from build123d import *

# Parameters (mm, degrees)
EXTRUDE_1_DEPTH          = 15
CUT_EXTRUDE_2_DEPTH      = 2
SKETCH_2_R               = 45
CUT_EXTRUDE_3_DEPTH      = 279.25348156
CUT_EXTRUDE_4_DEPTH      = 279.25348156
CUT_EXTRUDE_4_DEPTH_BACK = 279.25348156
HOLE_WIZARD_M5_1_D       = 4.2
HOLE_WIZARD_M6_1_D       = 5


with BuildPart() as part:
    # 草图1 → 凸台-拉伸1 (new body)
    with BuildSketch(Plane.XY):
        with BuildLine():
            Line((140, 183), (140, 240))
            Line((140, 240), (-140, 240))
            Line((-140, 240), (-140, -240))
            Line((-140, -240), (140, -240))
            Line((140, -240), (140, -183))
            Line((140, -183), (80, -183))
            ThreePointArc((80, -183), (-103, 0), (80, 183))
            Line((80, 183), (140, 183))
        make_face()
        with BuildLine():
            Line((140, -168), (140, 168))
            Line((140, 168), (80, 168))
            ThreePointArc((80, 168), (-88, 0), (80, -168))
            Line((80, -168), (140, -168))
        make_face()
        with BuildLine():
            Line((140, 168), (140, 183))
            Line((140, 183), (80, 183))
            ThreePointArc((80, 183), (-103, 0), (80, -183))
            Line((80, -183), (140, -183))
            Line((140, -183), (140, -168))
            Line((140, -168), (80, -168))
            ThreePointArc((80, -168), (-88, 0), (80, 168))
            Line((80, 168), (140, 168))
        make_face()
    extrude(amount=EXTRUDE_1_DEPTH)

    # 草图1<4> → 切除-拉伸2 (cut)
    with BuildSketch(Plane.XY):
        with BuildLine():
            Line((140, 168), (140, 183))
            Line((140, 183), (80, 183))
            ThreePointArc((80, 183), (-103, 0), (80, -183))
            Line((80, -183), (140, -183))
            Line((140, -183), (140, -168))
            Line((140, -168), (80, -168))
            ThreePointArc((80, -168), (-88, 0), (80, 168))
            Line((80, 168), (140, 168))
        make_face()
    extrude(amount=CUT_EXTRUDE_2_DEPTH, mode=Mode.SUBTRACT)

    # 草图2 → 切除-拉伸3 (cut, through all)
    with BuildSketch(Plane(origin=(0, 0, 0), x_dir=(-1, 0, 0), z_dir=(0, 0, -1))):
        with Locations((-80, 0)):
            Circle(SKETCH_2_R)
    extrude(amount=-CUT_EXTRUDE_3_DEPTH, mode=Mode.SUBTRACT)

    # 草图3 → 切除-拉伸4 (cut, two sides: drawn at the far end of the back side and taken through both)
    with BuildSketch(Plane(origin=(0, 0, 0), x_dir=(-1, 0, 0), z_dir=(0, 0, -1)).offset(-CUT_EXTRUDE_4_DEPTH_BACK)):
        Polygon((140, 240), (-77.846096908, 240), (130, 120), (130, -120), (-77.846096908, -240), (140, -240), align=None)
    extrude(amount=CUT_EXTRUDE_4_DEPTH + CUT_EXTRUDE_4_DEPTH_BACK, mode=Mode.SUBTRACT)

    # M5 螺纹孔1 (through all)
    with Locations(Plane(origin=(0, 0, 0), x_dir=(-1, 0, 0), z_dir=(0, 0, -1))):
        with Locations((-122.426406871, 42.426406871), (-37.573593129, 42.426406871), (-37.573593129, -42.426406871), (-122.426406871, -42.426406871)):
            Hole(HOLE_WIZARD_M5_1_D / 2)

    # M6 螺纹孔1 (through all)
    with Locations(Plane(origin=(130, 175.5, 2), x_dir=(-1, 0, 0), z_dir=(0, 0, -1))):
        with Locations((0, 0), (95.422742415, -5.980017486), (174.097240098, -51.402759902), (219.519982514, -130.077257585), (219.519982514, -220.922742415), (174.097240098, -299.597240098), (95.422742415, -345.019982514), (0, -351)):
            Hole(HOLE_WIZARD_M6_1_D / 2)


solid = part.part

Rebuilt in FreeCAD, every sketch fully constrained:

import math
import FreeCAD as App
import Part
import Sketcher
Q = App.Units.Quantity


def add_polygon(sketch, points):
    """Adds a closed chain of lines whose ends are joined by coincident constraints."""
    first, n = sketch.GeometryCount, len(points)
    for a, b in zip(points, points[1:] + points[:1]):
        sketch.addGeometry(Part.LineSegment(App.Vector(*a, 0), App.Vector(*b, 0)), False)
    for i in range(n):
        sketch.addConstraint(Sketcher.Constraint("Coincident", first + i, 2, first + (i + 1) % n, 1))

doc = App.newDocument("Part")
body = doc.addObject("PartDesign::Body", "Body")

# Sketch on XY plane
sketch1 = body.newObject("Sketcher::SketchObject", "Sketch")
sketch1.AttachmentSupport = (doc.getObject("XY_Plane"), [""])
sketch1.MapMode = "FlatFace"
add_polygon(sketch1, [(140, 240), (-140, 240), (-140, -240), (140, -240)])  # lines 0-3
sketch1.addConstraint(Sketcher.Constraint("Horizontal", 0))
sketch1.addConstraint(Sketcher.Constraint("Vertical", 1))
sketch1.addConstraint(Sketcher.Constraint("Horizontal", 2))
sketch1.addConstraint(Sketcher.Constraint("Vertical", 3))
sketch1.addConstraint(Sketcher.Constraint("Symmetric", 0, 2, 2, 2, -1, 1))
sketch1.addConstraint(Sketcher.Constraint("DistanceX", 0, 2, 0, 1, 280.0))
sketch1.addConstraint(Sketcher.Constraint("DistanceY", 1, 2, 1, 1, 480.0))
pad1 = body.newObject("PartDesign::Pad", "Pad")
pad1.Profile = sketch1
pad1.Length = 15

# Sketch on XY plane
sketch2 = body.newObject("Sketcher::SketchObject", "Sketch001")
sketch2.AttachmentSupport = (doc.getObject("XY_Plane"), [""])
sketch2.MapMode = "FlatFace"
sketch2.addGeometry(Part.LineSegment(App.Vector(140, 168, 0), App.Vector(140, 183, 0)), False)
sketch2.addGeometry(Part.LineSegment(App.Vector(140, 183, 0), App.Vector(80, 183, 0)), False)
sketch2.addGeometry(Part.ArcOfCircle(Part.Circle(App.Vector(80, 0, 0), App.Vector(0, 0, 1), 183), math.radians(90), math.radians(270)), False)
sketch2.addGeometry(Part.LineSegment(App.Vector(80, -183, 0), App.Vector(140, -183, 0)), False)
sketch2.addGeometry(Part.LineSegment(App.Vector(140, -183, 0), App.Vector(140, -168, 0)), False)
sketch2.addGeometry(Part.LineSegment(App.Vector(140, -168, 0), App.Vector(80, -168, 0)), False)
sketch2.addGeometry(Part.ArcOfCircle(Part.Circle(App.Vector(80, 0, 0), App.Vector(0, 0, 1), 168), math.radians(90), math.radians(270)), False)
sketch2.addGeometry(Part.LineSegment(App.Vector(80, 168, 0), App.Vector(140, 168, 0)), False)
sketch2.addConstraint(Sketcher.Constraint("Coincident", 0, 2, 1, 1))
sketch2.addConstraint(Sketcher.Constraint("Tangent", 1, 2, 2, 1))
sketch2.addConstraint(Sketcher.Constraint("Tangent", 2, 2, 3, 1))
sketch2.addConstraint(Sketcher.Constraint("Coincident", 3, 2, 4, 1))
sketch2.addConstraint(Sketcher.Constraint("Coincident", 4, 2, 5, 1))
sketch2.addConstraint(Sketcher.Constraint("Tangent", 5, 2, 6, 2))
sketch2.addConstraint(Sketcher.Constraint("Tangent", 6, 1, 7, 1))
sketch2.addConstraint(Sketcher.Constraint("Coincident", 7, 2, 0, 1))
sketch2.addConstraint(Sketcher.Constraint("Vertical", 0))
sketch2.addConstraint(Sketcher.Constraint("Horizontal", 1))
sketch2.addConstraint(Sketcher.Constraint("Horizontal", 3))
sketch2.addConstraint(Sketcher.Constraint("Vertical", 4))
sketch2.addConstraint(Sketcher.Constraint("Horizontal", 5))
sketch2.addConstraint(Sketcher.Constraint("Horizontal", 7))
sketch2.addConstraint(Sketcher.Constraint("Coincident", 6, 3, 2, 3))
sketch2.addConstraint(Sketcher.Constraint("Symmetric", 0, 2, 3, 2, -1))
sketch2.addConstraint(Sketcher.Constraint("Radius", 2, 183.0))
sketch2.addConstraint(Sketcher.Constraint("Radius", 6, 168.0))
sketch2.addConstraint(Sketcher.Constraint("DistanceX", 1, 2, 1, 1, 60.0))
sketch2.addConstraint(Sketcher.Constraint("DistanceX", -1, 1, 2, 3, 80.0))
pocket1 = body.newObject("PartDesign::Pocket", "Pocket")
pocket1.Profile = sketch2
pocket1.Length = 2
pocket1.Reversed = True

# Sketch on XY plane
sketch3 = body.newObject("Sketcher::SketchObject", "Sketch002")
sketch3.AttachmentSupport = (doc.getObject("XY_Plane"), [""])
sketch3.MapMode = "FlatFace"
sketch3.addGeometry(Part.Circle(App.Vector(80, 0, 0), App.Vector(0, 0, 1), 45), False)
sketch3.addConstraint(Sketcher.Constraint("PointOnObject", 0, 3, -1))
sketch3.addConstraint(Sketcher.Constraint("Diameter", 0, 90.0))
sketch3.addConstraint(Sketcher.Constraint("DistanceX", -1, 1, 0, 3, 80.0))
pocket2 = body.newObject("PartDesign::Pocket", "Pocket001")
pocket2.Profile = sketch3
pocket2.Type = "ThroughAll"
pocket2.Reversed = True

# Sketch on XY plane
sketch4 = body.newObject("Sketcher::SketchObject", "Sketch003")
sketch4.AttachmentSupport = (doc.getObject("XY_Plane"), [""])
sketch4.MapMode = "FlatFace"
add_polygon(sketch4, [(-140, 240), (77.846097, 240), (-130, 120), (-130, -120), (77.846097, -240), (-140, -240)])  # lines 0-5
sketch4.addConstraint(Sketcher.Constraint("Horizontal", 0))
sketch4.addConstraint(Sketcher.Constraint("Vertical", 2))
sketch4.addConstraint(Sketcher.Constraint("Horizontal", 4))
sketch4.addConstraint(Sketcher.Constraint("Vertical", 5))
sketch4.addConstraint(Sketcher.Constraint("Symmetric", 0, 2, 3, 2, -1))
sketch4.addConstraint(Sketcher.Constraint("Equal", 1, 3))
sketch4.addConstraint(Sketcher.Constraint("DistanceY", 2, 2, 2, 1, 240.0))
sketch4.addConstraint(Sketcher.Constraint("DistanceY", 5, 1, 5, 2, 480.0))
sketch4.addConstraint(Sketcher.Constraint("Angle", 1, Q("-150 deg")))
sketch4.addConstraint(Sketcher.Constraint("DistanceX", 1, 2, -1, 1, 130.0))
sketch4.addConstraint(Sketcher.Constraint("DistanceX", 4, 2, -1, 1, 140.0))
pocket3 = body.newObject("PartDesign::Pocket", "Pocket002")
pocket3.Profile = sketch4
pocket3.Type = "ThroughAll"
pocket3.Midplane = True

# Sketch on XY plane
sketch5 = body.newObject("Sketcher::SketchObject", "Sketch004")
sketch5.AttachmentSupport = (doc.getObject("XY_Plane"), [""])
sketch5.MapMode = "FlatFace"
sketch5.addGeometry(Part.Circle(App.Vector(122.426407, 42.426407, 0), App.Vector(0, 0, 1), 2.1), False)
sketch5.addGeometry(Part.Circle(App.Vector(37.573593, 42.426407, 0), App.Vector(0, 0, 1), 2.1), False)
sketch5.addGeometry(Part.Circle(App.Vector(37.573593, -42.426407, 0), App.Vector(0, 0, 1), 2.1), False)
sketch5.addGeometry(Part.Circle(App.Vector(122.426407, -42.426407, 0), App.Vector(0, 0, 1), 2.1), False)
sketch5.addConstraint(Sketcher.Constraint("Equal", 0, 1))
sketch5.addConstraint(Sketcher.Constraint("Equal", 1, 2))
sketch5.addConstraint(Sketcher.Constraint("Equal", 2, 3))
sketch5.addConstraint(Sketcher.Constraint("Symmetric", 1, 3, 2, 3, -1))
sketch5.addConstraint(Sketcher.Constraint("Symmetric", 0, 3, 3, 3, -1))
sketch5.addConstraint(Sketcher.Constraint("Horizontal", 0, 3, 1, 3))
sketch5.addConstraint(Sketcher.Constraint("Diameter", 0, 4.2))
sketch5.addConstraint(Sketcher.Constraint("DistanceX", -1, 1, 0, 3, 122.426407))
sketch5.addConstraint(Sketcher.Constraint("DistanceY", -1, 1, 0, 3, 42.426407))
sketch5.addConstraint(Sketcher.Constraint("DistanceX", -1, 1, 1, 3, 37.573593))
doc.recompute()
hole = body.newObject("PartDesign::Hole", "Hole")
hole.Profile = sketch5
hole.ThreadType = "None"
hole.Diameter = 4.2
hole.DepthType = "ThroughAll"
hole.Reversed = True

# Sketch on XY plane
sketch6 = body.newObject("Sketcher::SketchObject", "Sketch005")
sketch6.AttachmentSupport = (doc.getObject("XY_Plane"), [""])
sketch6.MapMode = "FlatFace"
sketch6.AttachmentOffset = App.Placement(App.Vector(0, 0, 2), App.Rotation())
sketch6.addGeometry(Part.Circle(App.Vector(130, 175.5, 0), App.Vector(0, 0, 1), 2.5), False)
sketch6.addGeometry(Part.Circle(App.Vector(34.577258, 169.519983, 0), App.Vector(0, 0, 1), 2.5), False)
sketch6.addGeometry(Part.Circle(App.Vector(-44.09724, 124.09724, 0), App.Vector(0, 0, 1), 2.5), False)
sketch6.addGeometry(Part.Circle(App.Vector(-89.519983, 45.422742, 0), App.Vector(0, 0, 1), 2.5), False)
sketch6.addGeometry(Part.Circle(App.Vector(-89.519983, -45.422742, 0), App.Vector(0, 0, 1), 2.5), False)
sketch6.addGeometry(Part.Circle(App.Vector(-44.09724, -124.09724, 0), App.Vector(0, 0, 1), 2.5), False)
sketch6.addGeometry(Part.Circle(App.Vector(34.577258, -169.519983, 0), App.Vector(0, 0, 1), 2.5), False)
sketch6.addGeometry(Part.Circle(App.Vector(130, -175.5, 0), App.Vector(0, 0, 1), 2.5), False)
sketch6.addConstraint(Sketcher.Constraint("Equal", 0, 1))
sketch6.addConstraint(Sketcher.Constraint("Equal", 1, 2))
sketch6.addConstraint(Sketcher.Constraint("Equal", 2, 3))
sketch6.addConstraint(Sketcher.Constraint("Equal", 3, 4))
sketch6.addConstraint(Sketcher.Constraint("Equal", 4, 5))
sketch6.addConstraint(Sketcher.Constraint("Equal", 5, 6))
sketch6.addConstraint(Sketcher.Constraint("Equal", 6, 7))
sketch6.addConstraint(Sketcher.Constraint("Symmetric", 3, 3, 4, 3, -1))
sketch6.addConstraint(Sketcher.Constraint("Symmetric", 2, 3, 5, 3, -1))
sketch6.addConstraint(Sketcher.Constraint("Symmetric", 1, 3, 6, 3, -1))
sketch6.addConstraint(Sketcher.Constraint("Symmetric", 0, 3, 7, 3, -1))
sketch6.addConstraint(Sketcher.Constraint("Diameter", 0, 5.0))
sketch6.addConstraint(Sketcher.Constraint("DistanceX", -1, 1, 0, 3, 130.0))
sketch6.addConstraint(Sketcher.Constraint("DistanceY", -1, 1, 0, 3, 175.5))
sketch6.addConstraint(Sketcher.Constraint("DistanceX", 2, 3, -1, 1, 44.09724))
sketch6.addConstraint(Sketcher.Constraint("DistanceY", -1, 1, 2, 3, 124.09724))
sketch6.addConstraint(Sketcher.Constraint("DistanceX", 3, 3, 1, 3, 124.09724))
sketch6.addConstraint(Sketcher.Constraint("DistanceY", 3, 3, 1, 3, 124.09724))
sketch6.addConstraint(Sketcher.Constraint("DistanceX", -1, 1, 1, 3, 34.577258))
sketch6.addConstraint(Sketcher.Constraint("DistanceY", -1, 1, 1, 3, 169.519983))
doc.recompute()
hole2 = body.newObject("PartDesign::Hole", "Hole001")
hole2.Profile = sketch6
hole2.ThreadType = "None"
hole2.Diameter = 5
hole2.DepthType = "ThroughAll"
hole2.Reversed = True

doc.recompute()
